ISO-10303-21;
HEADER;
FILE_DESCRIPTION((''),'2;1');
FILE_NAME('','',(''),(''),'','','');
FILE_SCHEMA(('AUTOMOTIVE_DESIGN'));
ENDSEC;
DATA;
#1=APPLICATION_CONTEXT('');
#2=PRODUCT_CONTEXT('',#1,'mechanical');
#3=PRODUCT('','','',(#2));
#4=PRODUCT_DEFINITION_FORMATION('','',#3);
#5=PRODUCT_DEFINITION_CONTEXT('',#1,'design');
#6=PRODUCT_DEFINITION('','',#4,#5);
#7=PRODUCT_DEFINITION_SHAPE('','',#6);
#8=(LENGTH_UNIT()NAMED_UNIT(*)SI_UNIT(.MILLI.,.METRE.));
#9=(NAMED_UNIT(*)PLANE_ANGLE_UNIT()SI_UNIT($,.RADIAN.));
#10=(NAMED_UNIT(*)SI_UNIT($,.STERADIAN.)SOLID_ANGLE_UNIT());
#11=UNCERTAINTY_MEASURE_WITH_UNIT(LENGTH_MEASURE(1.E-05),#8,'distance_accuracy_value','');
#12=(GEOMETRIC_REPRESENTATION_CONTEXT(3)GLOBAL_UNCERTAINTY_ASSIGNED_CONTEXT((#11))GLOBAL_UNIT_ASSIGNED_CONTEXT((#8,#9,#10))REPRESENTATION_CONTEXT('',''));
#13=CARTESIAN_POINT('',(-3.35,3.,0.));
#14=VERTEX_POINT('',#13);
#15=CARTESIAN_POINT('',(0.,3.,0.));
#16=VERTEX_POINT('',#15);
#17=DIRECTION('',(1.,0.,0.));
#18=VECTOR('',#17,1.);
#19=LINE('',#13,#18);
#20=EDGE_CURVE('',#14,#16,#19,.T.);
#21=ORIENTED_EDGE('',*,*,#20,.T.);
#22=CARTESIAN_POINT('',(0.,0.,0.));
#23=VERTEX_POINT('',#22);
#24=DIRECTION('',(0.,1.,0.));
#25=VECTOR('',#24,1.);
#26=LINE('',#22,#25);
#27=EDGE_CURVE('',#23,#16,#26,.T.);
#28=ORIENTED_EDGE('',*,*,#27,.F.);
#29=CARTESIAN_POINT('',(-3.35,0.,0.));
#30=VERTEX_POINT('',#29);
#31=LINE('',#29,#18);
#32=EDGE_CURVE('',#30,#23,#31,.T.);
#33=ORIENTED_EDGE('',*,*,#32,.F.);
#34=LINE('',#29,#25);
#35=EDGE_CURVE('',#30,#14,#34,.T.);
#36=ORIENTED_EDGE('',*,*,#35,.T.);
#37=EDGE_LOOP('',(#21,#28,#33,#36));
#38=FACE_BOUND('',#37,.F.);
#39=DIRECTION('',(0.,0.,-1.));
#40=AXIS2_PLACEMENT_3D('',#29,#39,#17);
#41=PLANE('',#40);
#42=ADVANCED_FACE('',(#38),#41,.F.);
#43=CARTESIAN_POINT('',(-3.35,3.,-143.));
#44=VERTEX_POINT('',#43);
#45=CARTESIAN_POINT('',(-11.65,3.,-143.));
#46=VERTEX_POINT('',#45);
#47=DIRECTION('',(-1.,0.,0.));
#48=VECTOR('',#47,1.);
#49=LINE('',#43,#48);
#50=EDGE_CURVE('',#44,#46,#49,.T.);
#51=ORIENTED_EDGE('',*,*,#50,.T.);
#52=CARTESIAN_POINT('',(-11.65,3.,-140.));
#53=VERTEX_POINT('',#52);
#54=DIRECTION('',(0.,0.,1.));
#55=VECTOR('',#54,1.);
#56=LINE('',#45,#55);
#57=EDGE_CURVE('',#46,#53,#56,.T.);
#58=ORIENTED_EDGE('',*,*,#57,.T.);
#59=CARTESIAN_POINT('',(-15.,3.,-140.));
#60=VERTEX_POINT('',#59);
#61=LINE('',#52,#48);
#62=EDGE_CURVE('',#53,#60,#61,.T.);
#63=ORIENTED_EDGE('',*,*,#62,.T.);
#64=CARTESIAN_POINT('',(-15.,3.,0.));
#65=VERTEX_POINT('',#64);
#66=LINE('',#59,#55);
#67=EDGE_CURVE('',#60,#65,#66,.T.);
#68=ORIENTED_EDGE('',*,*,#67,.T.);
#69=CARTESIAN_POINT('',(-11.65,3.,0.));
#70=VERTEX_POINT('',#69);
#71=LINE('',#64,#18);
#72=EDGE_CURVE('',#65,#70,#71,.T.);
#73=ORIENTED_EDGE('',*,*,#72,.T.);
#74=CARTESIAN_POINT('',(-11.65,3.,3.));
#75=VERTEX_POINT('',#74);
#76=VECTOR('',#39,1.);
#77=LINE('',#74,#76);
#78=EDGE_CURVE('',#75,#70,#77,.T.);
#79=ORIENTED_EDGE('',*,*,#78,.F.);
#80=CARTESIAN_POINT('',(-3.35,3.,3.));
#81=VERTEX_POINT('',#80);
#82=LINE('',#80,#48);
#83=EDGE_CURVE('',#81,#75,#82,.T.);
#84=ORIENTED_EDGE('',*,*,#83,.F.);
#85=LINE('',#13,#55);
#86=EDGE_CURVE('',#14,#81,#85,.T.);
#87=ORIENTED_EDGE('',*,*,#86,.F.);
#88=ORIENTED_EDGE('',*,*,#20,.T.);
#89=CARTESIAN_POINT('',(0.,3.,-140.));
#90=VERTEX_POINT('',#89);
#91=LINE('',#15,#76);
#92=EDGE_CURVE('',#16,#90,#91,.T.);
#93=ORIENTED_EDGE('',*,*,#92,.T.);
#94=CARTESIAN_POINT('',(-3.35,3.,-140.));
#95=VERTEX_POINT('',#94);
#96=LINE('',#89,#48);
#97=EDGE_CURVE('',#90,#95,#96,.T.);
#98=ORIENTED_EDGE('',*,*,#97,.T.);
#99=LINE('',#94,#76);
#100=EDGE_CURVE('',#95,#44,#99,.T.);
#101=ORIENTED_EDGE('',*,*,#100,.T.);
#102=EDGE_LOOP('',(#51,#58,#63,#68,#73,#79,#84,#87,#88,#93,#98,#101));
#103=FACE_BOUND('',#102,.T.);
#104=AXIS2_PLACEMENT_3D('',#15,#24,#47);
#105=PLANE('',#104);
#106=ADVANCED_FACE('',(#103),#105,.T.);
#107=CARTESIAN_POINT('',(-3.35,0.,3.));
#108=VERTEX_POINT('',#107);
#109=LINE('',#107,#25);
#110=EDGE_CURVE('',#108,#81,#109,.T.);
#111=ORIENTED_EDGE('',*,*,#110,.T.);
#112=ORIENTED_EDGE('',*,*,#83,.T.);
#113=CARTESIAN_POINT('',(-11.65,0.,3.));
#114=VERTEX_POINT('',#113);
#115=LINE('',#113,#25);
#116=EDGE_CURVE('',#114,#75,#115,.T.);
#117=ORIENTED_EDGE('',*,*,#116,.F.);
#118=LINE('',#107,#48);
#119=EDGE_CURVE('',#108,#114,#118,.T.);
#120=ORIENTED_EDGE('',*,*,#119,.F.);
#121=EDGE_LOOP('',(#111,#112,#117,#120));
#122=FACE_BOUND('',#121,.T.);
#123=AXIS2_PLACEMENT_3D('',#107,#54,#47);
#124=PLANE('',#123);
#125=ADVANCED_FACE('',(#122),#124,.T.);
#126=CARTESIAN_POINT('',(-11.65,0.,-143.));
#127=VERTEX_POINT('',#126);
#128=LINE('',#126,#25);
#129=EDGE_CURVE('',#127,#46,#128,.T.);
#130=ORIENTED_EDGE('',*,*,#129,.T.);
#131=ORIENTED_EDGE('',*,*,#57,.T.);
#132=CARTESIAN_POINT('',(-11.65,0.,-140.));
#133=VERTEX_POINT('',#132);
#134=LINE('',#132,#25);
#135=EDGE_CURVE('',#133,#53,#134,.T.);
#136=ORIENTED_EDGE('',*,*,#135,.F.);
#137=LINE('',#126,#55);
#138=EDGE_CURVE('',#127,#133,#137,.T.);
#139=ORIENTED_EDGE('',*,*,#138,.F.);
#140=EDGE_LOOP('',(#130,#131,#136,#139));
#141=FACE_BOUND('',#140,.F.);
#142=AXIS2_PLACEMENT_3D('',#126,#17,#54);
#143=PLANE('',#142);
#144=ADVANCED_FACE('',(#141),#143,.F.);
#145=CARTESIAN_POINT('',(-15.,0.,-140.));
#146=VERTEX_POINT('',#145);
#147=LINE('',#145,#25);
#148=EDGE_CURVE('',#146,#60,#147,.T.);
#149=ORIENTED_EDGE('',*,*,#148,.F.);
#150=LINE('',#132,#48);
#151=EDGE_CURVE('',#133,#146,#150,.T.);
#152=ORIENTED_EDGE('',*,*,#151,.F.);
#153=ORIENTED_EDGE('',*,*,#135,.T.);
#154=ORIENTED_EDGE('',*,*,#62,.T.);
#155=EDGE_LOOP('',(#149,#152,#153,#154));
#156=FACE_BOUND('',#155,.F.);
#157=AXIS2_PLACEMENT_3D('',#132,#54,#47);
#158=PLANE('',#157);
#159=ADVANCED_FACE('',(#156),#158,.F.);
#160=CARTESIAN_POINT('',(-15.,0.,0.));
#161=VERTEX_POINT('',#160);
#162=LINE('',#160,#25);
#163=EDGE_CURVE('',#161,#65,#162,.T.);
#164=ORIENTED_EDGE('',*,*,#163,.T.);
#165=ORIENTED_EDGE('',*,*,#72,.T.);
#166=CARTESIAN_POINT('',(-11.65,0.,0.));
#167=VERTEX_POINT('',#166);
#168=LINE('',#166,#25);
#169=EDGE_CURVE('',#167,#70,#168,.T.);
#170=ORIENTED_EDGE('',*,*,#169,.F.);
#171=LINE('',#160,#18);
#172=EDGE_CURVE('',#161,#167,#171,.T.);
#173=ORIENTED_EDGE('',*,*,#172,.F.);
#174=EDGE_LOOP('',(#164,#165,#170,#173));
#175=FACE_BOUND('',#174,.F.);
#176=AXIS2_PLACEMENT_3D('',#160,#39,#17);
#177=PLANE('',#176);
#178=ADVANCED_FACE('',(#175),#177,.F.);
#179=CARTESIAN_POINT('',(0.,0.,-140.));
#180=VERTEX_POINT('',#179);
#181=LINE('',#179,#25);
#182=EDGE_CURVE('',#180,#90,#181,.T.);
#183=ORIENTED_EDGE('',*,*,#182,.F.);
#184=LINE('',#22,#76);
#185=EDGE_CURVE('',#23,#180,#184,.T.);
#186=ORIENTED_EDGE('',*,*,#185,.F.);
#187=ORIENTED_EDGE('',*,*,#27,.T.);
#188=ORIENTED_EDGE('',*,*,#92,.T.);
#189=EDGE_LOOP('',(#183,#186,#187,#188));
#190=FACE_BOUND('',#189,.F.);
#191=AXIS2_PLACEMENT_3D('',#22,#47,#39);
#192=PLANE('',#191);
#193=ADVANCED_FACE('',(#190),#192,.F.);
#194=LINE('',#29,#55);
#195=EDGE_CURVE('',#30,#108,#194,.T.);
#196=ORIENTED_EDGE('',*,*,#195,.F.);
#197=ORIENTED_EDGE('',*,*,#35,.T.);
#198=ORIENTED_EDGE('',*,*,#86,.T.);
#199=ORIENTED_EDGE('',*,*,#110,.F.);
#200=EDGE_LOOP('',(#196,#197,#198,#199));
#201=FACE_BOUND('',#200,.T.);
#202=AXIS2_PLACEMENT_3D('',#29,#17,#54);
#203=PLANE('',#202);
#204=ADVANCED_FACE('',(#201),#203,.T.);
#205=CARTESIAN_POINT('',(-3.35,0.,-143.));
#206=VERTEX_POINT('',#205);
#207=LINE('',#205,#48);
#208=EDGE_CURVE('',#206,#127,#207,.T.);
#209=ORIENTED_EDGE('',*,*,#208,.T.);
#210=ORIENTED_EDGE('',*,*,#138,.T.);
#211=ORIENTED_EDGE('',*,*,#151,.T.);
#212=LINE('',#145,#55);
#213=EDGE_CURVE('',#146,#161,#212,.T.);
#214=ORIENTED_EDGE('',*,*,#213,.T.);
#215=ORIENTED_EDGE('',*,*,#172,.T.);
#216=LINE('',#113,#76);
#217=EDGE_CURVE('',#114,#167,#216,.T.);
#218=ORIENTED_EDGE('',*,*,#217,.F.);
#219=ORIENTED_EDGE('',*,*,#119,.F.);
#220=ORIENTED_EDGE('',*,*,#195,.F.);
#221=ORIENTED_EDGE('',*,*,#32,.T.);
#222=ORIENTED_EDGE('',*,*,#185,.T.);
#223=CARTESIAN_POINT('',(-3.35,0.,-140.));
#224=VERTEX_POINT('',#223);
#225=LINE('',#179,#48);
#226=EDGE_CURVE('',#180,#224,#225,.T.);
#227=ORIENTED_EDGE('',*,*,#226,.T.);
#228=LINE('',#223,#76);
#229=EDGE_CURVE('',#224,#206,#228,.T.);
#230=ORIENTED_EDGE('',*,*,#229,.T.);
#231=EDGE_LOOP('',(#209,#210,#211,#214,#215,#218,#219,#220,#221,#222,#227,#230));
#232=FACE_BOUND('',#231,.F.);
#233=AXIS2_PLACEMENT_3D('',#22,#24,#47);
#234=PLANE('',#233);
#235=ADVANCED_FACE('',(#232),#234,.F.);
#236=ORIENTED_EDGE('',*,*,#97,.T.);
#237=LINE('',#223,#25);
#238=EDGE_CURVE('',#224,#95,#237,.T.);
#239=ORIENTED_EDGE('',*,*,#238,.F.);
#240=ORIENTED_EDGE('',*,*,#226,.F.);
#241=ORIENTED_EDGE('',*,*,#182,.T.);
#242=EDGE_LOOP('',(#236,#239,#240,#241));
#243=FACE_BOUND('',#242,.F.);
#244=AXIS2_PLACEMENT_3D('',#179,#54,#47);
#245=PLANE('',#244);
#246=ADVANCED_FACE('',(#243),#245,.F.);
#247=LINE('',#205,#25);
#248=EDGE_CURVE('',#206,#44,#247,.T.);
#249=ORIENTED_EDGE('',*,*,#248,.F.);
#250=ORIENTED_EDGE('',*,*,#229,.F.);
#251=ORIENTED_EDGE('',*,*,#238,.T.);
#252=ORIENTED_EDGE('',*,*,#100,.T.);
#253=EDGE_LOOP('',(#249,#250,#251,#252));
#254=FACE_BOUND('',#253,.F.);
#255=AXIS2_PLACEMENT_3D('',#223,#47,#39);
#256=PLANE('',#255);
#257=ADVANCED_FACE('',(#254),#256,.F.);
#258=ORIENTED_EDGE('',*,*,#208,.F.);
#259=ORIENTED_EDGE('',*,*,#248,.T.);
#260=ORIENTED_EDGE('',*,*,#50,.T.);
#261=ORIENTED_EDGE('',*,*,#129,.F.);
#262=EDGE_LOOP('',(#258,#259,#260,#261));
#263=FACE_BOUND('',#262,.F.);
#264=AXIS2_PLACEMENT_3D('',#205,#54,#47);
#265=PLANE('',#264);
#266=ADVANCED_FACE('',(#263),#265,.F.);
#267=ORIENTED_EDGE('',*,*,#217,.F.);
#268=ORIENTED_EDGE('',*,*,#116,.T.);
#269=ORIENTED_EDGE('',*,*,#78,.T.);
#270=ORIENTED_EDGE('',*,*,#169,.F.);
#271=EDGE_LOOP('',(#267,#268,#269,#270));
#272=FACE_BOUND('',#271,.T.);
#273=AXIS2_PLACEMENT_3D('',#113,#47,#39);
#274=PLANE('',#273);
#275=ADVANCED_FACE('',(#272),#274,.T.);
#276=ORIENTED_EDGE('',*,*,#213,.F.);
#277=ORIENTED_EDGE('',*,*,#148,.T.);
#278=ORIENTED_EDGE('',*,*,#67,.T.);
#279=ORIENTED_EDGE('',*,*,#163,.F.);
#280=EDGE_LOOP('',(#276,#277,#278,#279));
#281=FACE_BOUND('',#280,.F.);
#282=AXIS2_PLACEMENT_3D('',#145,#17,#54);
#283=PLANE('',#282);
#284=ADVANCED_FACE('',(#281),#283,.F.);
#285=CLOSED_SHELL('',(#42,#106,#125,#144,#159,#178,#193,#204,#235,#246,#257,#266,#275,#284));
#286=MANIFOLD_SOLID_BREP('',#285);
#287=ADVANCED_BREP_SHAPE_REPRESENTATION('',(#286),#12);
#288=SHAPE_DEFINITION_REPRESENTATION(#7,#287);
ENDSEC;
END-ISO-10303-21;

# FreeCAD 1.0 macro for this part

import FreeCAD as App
import Part
import Sketcher
Q = App.Units.Quantity

doc = App.newDocument("Part")
body = doc.addObject("PartDesign::Body", "Body")

# Sketch on XZ plane
sketch1 = body.newObject("Sketcher::SketchObject", "Sketch")
sketch1.AttachmentSupport = (doc.getObject("XZ_Plane"), [""])
sketch1.MapMode = "FlatFace"
sketch1.addGeometry(Part.LineSegment(App.Vector(-3.4, 0, 0), App.Vector(0, 0, 0)), False)
sketch1.addGeometry(Part.LineSegment(App.Vector(0, 0, 0), App.Vector(0, -140, 0)), False)
sketch1.addGeometry(Part.LineSegment(App.Vector(0, -140, 0), App.Vector(-3.4, -140, 0)), False)
sketch1.addGeometry(Part.LineSegment(App.Vector(-3.4, -140, 0), App.Vector(-3.4, -143, 0)), False)
sketch1.addGeometry(Part.LineSegment(App.Vector(-3.4, -143, 0), App.Vector(-11.7, -143, 0)), False)
sketch1.addGeometry(Part.LineSegment(App.Vector(-11.7, -143, 0), App.Vector(-11.7, -140, 0)), False)
sketch1.addGeometry(Part.LineSegment(App.Vector(-11.7, -140, 0), App.Vector(-15, -140, 0)), False)
sketch1.addGeometry(Part.LineSegment(App.Vector(-15, -140, 0), App.Vector(-15, 0, 0)), False)
sketch1.addGeometry(Part.LineSegment(App.Vector(-15, 0, 0), App.Vector(-11.7, 0, 0)), False)
sketch1.addGeometry(Part.LineSegment(App.Vector(-11.7, 0, 0), App.Vector(-11.7, 3, 0)), False)
sketch1.addGeometry(Part.LineSegment(App.Vector(-11.7, 3, 0), App.Vector(-3.4, 3, 0)), False)
sketch1.addGeometry(Part.LineSegment(App.Vector(-3.4, 3, 0), App.Vector(-3.4, 0, 0)), False)
sketch1.addConstraint(Sketcher.Constraint("Coincident", 0, 2, 1, 1))
sketch1.addConstraint(Sketcher.Constraint("Coincident", 1, 2, 2, 1))
sketch1.addConstraint(Sketcher.Constraint("Coincident", 2, 2, 3, 1))
sketch1.addConstraint(Sketcher.Constraint("Coincident", 3, 2, 4, 1))
sketch1.addConstraint(Sketcher.Constraint("Coincident", 4, 2, 5, 1))
sketch1.addConstraint(Sketcher.Constraint("Coincident", 5, 2, 6, 1))
sketch1.addConstraint(Sketcher.Constraint("Coincident", 6, 2, 7, 1))
sketch1.addConstraint(Sketcher.Constraint("Coincident", 7, 2, 8, 1))
sketch1.addConstraint(Sketcher.Constraint("Coincident", 8, 2, 9, 1))
sketch1.addConstraint(Sketcher.Constraint("Coincident", 9, 2, 10, 1))
sketch1.addConstraint(Sketcher.Constraint("Coincident", 10, 2, 11, 1))
sketch1.addConstraint(Sketcher.Constraint("Coincident", 11, 2, 0, 1))
sketch1.addConstraint(Sketcher.Constraint("Horizontal", 0))
sketch1.addConstraint(Sketcher.Constraint("Vertical", 1))
sketch1.addConstraint(Sketcher.Constraint("Horizontal", 2))
sketch1.addConstraint(Sketcher.Constraint("Vertical", 3))
sketch1.addConstraint(Sketcher.Constraint("Horizontal", 4))
sketch1.addConstraint(Sketcher.Constraint("Vertical", 5))
sketch1.addConstraint(Sketcher.Constraint("Horizontal", 6))
sketch1.addConstraint(Sketcher.Constraint("Vertical", 7))
sketch1.addConstraint(Sketcher.Constraint("Horizontal", 8))
sketch1.addConstraint(Sketcher.Constraint("Vertical", 9))
sketch1.addConstraint(Sketcher.Constraint("Horizontal", 10))
sketch1.addConstraint(Sketcher.Constraint("Vertical", 11))
sketch1.addConstraint(Sketcher.Constraint("Coincident", 0, 2, -1, 1))
sketch1.addConstraint(Sketcher.Constraint("PointOnObject", 7, 2, -1))
sketch1.addConstraint(Sketcher.Constraint("Horizontal", 2, 2, 5, 2))
sketch1.addConstraint(Sketcher.Constraint("Vertical", 5, 2, 8, 2))
sketch1.addConstraint(Sketcher.Constraint("Vertical", 3, 2, 10, 2))
sketch1.addConstraint(Sketcher.Constraint("Equal", 2, 6))
sketch1.addConstraint(Sketcher.Constraint("Equal", 5, 9))
sketch1.addConstraint(Sketcher.Constraint("DistanceY", 1, 2, 1, 1, Q("140 mm")))
sketch1.addConstraint(Sketcher.Constraint("DistanceY", 3, 2, 3, 1, Q("3 mm")))
sketch1.addConstraint(Sketcher.Constraint("DistanceX", 4, 2, 4, 1, Q("8.3 mm")))
sketch1.addConstraint(Sketcher.Constraint("DistanceX", 6, 2, -1, 1, Q("15 mm")))
pad1 = body.newObject("PartDesign::Pad", "Pad")
pad1.Profile = sketch1
pad1.Length = 3
pad1.Reversed = True

doc.recompute()
